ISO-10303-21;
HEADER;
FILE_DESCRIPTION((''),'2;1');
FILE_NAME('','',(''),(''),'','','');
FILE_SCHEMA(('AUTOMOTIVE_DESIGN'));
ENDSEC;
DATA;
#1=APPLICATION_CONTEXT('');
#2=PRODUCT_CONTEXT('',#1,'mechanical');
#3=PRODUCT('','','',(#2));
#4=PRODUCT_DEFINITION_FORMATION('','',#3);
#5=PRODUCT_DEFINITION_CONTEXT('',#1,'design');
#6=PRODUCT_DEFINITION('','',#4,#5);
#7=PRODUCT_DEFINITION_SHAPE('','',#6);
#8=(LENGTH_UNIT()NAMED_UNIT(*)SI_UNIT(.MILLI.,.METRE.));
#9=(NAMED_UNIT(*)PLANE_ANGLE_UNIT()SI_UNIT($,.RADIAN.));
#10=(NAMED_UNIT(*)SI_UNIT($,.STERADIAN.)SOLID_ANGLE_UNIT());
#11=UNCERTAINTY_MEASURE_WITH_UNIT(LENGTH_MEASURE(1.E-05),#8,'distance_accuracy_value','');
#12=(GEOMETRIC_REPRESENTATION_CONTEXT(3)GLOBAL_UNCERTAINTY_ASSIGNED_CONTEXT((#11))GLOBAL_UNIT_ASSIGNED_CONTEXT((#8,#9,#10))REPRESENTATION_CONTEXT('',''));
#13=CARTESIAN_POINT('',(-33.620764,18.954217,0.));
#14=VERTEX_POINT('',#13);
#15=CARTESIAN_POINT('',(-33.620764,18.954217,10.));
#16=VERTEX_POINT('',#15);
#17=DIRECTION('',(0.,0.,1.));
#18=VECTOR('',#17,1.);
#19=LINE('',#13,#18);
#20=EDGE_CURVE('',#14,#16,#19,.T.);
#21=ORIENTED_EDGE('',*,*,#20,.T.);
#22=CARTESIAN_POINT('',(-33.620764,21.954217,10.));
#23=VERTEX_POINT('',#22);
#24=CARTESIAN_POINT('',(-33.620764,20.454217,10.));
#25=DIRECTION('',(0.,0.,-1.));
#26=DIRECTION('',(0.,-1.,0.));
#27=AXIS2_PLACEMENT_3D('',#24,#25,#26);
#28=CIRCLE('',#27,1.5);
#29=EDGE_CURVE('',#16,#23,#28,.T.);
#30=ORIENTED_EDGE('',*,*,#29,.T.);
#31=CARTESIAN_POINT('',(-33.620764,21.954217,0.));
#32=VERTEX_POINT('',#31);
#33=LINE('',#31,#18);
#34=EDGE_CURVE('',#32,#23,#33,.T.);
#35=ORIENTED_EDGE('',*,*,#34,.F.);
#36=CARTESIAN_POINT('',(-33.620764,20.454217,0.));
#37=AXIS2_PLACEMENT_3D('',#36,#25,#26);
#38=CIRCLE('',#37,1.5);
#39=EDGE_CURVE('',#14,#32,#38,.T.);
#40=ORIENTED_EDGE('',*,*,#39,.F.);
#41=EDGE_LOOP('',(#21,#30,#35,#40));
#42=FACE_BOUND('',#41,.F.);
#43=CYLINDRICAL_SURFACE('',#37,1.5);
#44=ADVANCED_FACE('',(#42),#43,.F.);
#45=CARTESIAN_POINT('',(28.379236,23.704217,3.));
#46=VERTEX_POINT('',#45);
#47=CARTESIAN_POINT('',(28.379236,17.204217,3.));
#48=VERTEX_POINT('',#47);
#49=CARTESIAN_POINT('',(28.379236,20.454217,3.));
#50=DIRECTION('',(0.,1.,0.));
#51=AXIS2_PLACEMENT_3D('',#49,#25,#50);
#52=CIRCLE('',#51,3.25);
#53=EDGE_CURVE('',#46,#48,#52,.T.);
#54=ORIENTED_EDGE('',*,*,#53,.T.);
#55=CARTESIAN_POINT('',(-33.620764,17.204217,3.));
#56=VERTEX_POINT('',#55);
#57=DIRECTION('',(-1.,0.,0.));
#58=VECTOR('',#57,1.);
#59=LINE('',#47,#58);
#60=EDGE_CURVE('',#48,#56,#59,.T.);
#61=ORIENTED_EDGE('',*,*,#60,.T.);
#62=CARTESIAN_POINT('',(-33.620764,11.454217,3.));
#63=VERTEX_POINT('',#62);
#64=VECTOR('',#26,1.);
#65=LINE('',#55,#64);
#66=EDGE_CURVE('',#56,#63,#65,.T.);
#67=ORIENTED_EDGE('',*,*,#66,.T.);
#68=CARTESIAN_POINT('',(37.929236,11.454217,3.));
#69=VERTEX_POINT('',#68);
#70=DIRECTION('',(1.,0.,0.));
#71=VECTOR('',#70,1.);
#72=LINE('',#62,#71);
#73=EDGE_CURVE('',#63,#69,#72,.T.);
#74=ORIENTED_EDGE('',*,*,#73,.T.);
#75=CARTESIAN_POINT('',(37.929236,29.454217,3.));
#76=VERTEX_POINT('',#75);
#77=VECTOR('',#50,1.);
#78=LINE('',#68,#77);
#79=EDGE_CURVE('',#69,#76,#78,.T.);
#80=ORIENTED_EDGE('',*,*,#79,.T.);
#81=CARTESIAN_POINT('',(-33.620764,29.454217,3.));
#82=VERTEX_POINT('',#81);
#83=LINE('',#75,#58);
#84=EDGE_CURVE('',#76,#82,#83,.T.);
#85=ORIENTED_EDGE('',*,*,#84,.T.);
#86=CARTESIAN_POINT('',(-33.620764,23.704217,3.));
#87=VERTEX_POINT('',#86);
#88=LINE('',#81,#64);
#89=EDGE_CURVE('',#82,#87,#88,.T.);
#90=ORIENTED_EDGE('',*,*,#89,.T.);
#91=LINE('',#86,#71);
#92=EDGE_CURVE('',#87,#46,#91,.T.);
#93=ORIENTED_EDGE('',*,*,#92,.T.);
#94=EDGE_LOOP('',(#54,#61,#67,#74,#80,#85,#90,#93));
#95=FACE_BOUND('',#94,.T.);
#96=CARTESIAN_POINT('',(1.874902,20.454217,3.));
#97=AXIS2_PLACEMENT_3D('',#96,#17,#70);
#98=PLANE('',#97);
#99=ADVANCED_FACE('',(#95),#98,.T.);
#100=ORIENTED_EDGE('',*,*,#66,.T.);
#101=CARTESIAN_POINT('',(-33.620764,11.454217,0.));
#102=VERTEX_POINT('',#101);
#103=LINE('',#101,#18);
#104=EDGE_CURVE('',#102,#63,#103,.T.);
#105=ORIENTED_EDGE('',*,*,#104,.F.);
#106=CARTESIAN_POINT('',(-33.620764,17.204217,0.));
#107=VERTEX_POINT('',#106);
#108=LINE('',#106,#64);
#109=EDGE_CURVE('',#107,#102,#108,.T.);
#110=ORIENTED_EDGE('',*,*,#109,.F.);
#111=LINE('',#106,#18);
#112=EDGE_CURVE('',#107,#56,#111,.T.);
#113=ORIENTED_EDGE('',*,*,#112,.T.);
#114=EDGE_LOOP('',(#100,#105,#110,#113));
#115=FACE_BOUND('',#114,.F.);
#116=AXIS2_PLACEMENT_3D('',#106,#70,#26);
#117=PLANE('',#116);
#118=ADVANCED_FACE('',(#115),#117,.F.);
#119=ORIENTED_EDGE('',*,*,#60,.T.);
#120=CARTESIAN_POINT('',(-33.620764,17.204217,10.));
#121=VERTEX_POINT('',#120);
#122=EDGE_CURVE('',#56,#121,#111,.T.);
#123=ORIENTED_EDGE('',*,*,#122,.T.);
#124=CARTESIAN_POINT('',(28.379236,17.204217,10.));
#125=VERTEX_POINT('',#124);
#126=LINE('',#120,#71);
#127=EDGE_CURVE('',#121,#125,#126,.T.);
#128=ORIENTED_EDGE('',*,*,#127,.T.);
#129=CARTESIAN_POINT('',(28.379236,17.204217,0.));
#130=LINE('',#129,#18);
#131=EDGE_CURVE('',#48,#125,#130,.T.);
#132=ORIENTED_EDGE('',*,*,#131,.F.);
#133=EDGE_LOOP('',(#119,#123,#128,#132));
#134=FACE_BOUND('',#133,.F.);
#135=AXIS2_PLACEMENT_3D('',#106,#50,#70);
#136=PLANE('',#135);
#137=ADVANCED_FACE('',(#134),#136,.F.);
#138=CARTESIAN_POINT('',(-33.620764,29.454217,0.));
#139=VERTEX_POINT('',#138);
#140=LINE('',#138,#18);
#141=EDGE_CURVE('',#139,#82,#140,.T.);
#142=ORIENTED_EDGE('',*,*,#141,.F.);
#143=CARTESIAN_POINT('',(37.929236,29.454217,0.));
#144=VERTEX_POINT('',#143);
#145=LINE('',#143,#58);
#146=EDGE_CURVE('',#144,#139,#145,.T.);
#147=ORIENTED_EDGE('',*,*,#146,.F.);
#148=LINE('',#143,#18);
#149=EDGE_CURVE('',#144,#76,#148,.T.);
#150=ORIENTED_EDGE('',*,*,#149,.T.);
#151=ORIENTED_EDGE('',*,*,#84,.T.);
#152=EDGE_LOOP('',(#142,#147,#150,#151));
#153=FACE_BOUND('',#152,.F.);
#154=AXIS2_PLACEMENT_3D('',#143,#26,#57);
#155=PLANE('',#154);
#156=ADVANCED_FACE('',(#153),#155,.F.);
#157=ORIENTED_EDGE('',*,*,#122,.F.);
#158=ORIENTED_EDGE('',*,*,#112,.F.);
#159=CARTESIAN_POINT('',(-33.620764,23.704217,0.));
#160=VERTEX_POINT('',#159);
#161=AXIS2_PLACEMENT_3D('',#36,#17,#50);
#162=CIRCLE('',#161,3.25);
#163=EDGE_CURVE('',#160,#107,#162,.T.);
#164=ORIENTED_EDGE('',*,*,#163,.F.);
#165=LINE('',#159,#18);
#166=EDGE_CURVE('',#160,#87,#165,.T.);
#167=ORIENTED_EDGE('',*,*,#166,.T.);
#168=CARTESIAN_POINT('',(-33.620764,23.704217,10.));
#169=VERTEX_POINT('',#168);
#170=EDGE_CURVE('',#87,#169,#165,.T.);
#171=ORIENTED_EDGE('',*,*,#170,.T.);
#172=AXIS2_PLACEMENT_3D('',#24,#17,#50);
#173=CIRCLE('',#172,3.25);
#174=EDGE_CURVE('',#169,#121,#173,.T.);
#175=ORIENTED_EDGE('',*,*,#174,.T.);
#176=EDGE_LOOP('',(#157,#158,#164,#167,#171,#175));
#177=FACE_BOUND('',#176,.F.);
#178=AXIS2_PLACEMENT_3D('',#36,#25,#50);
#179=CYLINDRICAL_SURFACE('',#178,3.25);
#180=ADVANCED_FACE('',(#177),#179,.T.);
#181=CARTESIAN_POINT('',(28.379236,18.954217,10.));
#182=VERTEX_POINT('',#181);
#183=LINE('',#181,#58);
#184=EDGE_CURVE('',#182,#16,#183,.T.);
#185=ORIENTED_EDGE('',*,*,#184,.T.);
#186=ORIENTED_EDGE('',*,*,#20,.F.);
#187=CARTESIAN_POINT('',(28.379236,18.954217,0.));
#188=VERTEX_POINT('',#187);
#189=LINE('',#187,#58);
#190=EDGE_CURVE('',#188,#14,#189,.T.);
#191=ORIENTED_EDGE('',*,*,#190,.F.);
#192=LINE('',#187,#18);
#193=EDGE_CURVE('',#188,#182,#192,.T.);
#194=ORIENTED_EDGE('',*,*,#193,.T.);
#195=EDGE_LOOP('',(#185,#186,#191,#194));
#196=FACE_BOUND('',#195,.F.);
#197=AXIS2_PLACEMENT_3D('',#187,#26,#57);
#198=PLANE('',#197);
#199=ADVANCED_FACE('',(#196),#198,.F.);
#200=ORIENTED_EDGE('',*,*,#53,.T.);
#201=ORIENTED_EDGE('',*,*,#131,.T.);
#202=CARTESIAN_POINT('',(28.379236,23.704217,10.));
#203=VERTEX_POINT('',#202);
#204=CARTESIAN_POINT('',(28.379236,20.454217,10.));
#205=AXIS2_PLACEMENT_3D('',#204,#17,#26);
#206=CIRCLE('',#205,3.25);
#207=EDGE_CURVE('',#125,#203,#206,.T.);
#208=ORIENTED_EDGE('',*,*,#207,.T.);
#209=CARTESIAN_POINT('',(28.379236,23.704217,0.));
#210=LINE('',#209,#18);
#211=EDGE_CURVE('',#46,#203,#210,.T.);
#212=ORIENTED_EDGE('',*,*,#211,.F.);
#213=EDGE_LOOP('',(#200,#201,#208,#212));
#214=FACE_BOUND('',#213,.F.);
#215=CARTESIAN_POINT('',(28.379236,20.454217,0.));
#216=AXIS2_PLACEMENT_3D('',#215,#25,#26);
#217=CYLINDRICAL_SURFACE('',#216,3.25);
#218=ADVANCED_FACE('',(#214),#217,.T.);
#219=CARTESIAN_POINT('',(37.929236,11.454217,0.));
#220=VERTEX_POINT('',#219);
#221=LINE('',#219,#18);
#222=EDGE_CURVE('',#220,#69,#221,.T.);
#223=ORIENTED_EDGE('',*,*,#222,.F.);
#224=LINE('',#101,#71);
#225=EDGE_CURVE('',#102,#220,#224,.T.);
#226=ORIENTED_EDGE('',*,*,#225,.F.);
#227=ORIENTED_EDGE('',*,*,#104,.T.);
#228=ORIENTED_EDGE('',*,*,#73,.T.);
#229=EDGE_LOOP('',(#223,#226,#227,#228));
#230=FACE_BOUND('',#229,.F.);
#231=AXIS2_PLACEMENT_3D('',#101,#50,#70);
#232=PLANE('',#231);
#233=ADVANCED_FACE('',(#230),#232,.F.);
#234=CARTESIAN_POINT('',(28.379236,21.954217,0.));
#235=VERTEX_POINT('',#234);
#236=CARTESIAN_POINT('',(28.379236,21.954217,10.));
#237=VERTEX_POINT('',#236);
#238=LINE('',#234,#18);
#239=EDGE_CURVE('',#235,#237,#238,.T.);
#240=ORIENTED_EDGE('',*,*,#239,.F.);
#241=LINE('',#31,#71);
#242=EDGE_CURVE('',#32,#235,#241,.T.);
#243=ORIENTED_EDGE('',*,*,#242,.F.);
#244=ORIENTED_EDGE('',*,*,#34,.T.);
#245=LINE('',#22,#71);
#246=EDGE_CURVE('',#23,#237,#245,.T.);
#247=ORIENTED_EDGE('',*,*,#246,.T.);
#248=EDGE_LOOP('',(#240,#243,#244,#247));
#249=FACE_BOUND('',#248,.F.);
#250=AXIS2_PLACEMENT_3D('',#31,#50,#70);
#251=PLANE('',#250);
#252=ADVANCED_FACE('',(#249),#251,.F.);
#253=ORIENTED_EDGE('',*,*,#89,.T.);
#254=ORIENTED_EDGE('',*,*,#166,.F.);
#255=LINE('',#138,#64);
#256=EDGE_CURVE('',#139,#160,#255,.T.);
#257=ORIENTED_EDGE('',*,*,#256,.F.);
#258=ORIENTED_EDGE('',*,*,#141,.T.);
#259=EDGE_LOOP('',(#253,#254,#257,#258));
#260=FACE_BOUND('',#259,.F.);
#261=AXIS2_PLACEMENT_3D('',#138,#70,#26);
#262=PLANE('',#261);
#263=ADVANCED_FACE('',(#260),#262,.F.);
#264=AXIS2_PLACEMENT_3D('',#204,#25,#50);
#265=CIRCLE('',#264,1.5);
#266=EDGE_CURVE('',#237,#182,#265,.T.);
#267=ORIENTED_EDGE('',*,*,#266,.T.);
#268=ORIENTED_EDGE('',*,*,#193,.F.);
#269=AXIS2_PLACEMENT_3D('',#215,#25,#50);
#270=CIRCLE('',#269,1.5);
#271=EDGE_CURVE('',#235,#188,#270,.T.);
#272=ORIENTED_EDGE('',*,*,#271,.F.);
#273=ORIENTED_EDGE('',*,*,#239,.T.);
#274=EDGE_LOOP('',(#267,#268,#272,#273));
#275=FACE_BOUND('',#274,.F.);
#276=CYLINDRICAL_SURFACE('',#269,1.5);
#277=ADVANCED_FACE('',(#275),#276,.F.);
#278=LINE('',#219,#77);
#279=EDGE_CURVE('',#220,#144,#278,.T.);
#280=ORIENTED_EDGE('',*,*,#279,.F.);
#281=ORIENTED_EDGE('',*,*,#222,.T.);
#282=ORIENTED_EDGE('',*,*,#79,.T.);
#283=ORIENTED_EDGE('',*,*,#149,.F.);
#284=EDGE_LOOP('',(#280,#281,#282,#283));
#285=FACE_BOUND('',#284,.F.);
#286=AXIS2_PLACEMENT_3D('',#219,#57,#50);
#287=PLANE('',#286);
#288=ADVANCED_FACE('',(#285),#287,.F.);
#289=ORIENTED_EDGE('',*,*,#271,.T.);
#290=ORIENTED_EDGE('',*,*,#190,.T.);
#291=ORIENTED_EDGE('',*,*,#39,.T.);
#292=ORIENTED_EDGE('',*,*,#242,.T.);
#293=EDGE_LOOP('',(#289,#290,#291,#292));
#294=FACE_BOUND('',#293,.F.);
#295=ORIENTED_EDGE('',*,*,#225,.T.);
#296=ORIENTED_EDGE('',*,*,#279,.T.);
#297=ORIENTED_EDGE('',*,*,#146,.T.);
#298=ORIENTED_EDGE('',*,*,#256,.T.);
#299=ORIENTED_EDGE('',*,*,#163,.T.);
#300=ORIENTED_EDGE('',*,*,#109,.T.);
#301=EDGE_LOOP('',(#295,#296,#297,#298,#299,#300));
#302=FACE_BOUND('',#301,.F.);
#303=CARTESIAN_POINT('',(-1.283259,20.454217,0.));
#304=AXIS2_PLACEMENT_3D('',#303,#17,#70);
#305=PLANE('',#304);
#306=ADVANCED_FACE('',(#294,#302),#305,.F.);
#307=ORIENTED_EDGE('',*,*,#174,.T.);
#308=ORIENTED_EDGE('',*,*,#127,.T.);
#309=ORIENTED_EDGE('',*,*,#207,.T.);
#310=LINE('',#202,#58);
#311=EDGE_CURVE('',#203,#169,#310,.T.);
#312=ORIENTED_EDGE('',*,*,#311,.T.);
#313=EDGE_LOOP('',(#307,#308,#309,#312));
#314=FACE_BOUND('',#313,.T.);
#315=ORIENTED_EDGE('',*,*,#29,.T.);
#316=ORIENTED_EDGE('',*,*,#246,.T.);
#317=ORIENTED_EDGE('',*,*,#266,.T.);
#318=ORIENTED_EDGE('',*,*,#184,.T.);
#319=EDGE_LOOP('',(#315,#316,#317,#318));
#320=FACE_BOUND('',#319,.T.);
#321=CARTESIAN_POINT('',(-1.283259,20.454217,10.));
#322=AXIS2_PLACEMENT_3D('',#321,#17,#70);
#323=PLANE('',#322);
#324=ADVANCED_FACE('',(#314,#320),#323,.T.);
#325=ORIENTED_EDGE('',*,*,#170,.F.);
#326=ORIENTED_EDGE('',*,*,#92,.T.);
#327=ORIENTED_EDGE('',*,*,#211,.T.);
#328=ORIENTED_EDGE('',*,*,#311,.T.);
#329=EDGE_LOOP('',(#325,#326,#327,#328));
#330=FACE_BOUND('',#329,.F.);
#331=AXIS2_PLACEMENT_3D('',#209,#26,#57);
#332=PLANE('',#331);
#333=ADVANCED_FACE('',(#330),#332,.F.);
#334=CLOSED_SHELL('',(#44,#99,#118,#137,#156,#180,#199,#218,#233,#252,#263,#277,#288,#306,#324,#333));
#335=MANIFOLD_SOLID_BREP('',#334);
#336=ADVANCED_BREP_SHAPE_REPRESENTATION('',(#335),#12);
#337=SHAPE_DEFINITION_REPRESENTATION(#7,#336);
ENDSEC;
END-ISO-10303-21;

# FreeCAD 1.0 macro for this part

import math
import FreeCAD as App
import Part
import Sketcher
from FreeCAD import Vector
Q = App.Units.Quantity

doc = App.newDocument("Part")
body = doc.addObject("PartDesign::Body", "Body")

sketch1 = doc.addObject("Sketcher::SketchObject", "Sketch")
body.addObject(sketch1)
sketch1.AttachmentSupport = (doc.XY_Plane, [""])
sketch1.MapMode = "FlatFace"
sketch1.addGeometry([
    Part.LineSegment(Vector(28.4, 17.2, 0), Vector(-33.6, 17.2, 0)),
    Part.LineSegment(Vector(-33.6, 17.2, 0), Vector(-33.6, 11.5, 0)),
    Part.LineSegment(Vector(-33.6, 11.5, 0), Vector(37.9, 11.5, 0)),
    Part.LineSegment(Vector(37.9, 11.5, 0), Vector(37.9, 29.5, 0)),
    Part.LineSegment(Vector(37.9, 29.5, 0), Vector(-33.6, 29.5, 0)),
    Part.LineSegment(Vector(-33.6, 29.5, 0), Vector(-33.6, 23.7, 0)),
    Part.LineSegment(Vector(-33.6, 23.7, 0), Vector(28.4, 23.7, 0)),
    Part.ArcOfCircle(Part.Circle(Vector(28.4, 20.5, 0), Vector(0, 0, 1), 3.2), math.radians(-90), math.radians(90)),
], False)
sketch1.addConstraint([
    Sketcher.Constraint("Coincident", 0, 2, 1, 1),
    Sketcher.Constraint("Coincident", 1, 2, 2, 1),
    Sketcher.Constraint("Coincident", 2, 2, 3, 1),
    Sketcher.Constraint("Coincident", 3, 2, 4, 1),
    Sketcher.Constraint("Coincident", 4, 2, 5, 1),
    Sketcher.Constraint("Coincident", 5, 2, 6, 1),
    Sketcher.Constraint("Tangent", 6, 2, 7, 2),
    Sketcher.Constraint("Tangent", 7, 1, 0, 1),
    Sketcher.Constraint("Horizontal", 0),
    Sketcher.Constraint("Vertical", 1),
    Sketcher.Constraint("Horizontal", 2),
    Sketcher.Constraint("Vertical", 3),
    Sketcher.Constraint("Horizontal", 4),
    Sketcher.Constraint("Vertical", 5),
    Sketcher.Constraint("Horizontal", 6),
    Sketcher.Constraint("Vertical", 1, 2, 4, 2),
    Sketcher.Constraint("Equal", 1, 5),
    Sketcher.Constraint("DistanceX", 0, 2, 0, 1, Q("62 mm")),
    Sketcher.Constraint("DistanceY", 3, 1, 3, 2, Q("18 mm")),
    Sketcher.Constraint("Radius", 7, Q("3.25 mm")),
    Sketcher.Constraint("DistanceX", 2, 1, 2, 2, Q("71.55 mm")),
    Sketcher.Constraint("DistanceX", -1, 1, 7, 3, Q("28.379236 mm")),
    Sketcher.Constraint("DistanceY", -1, 1, 7, 3, Q("20.454217 mm")),
])
pad1 = doc.addObject("PartDesign::Pad", "Pad")
body.addObject(pad1)
pad1.Profile = sketch1
pad1.Length = 3

sketch2 = doc.addObject("Sketcher::SketchObject", "Sketch001")
body.addObject(sketch2)
sketch2.AttachmentSupport = (doc.XY_Plane, [""])
sketch2.MapMode = "FlatFace"
sketch2.addGeometry([
    Part.LineSegment(Vector(-33.6, 17.2, 0), Vector(28.4, 17.2, 0)),
    Part.ArcOfCircle(Part.Circle(Vector(28.4, 20.5, 0), Vector(0, 0, 1), 3.2), math.radians(-90), math.radians(90)),
    Part.LineSegment(Vector(28.4, 23.7, 0), Vector(-33.6, 23.7, 0)),
    Part.ArcOfCircle(Part.Circle(Vector(-33.6, 20.5, 0), Vector(0, 0, 1), 3.2), math.radians(90), math.radians(270)),
    Part.LineSegment(Vector(-33.6, 22, 0), Vector(28.4, 22, 0)),
    Part.ArcOfCircle(Part.Circle(Vector(28.4, 20.5, 0), Vector(0, 0, 1), 1.5), math.radians(-90), math.radians(90)),
    Part.LineSegment(Vector(28.4, 19, 0), Vector(-33.6, 19, 0)),
    Part.ArcOfCircle(Part.Circle(Vector(-33.6, 20.5, 0), Vector(0, 0, 1), 1.5), math.radians(90), math.radians(270)),
], False)
sketch2.addConstraint([
    Sketcher.Constraint("Tangent", 0, 2, 1, 1),
    Sketcher.Constraint("Tangent", 1, 2, 2, 1),
    Sketcher.Constraint("Tangent", 2, 2, 3, 1),
    Sketcher.Constraint("Tangent", 3, 2, 0, 1),
    Sketcher.Constraint("Tangent", 4, 2, 5, 2),
    Sketcher.Constraint("Tangent", 5, 1, 6, 1),
    Sketcher.Constraint("Tangent", 6, 2, 7, 2),
    Sketcher.Constraint("Tangent", 7, 1, 4, 1),
    Sketcher.Constraint("Horizontal", 0),
    Sketcher.Constraint("Horizontal", 2),
    Sketcher.Constraint("Horizontal", 4),
    Sketcher.Constraint("Horizontal", 6),
    Sketcher.Constraint("Coincident", 5, 3, 1, 3),
    Sketcher.Constraint("Vertical", 7, 3, 2, 2),
    Sketcher.Constraint("Radius", 5, Q("1.5 mm")),
    Sketcher.Constraint("DistanceX", 0, 1, 0, 2, Q("62 mm")),
    Sketcher.Constraint("Radius", 1, Q("3.25 mm")),
    Sketcher.Constraint("DistanceX", -1, 1, 1, 3, Q("28.379236 mm")),
    Sketcher.Constraint("DistanceY", -1, 1, 1, 3, Q("20.454217 mm")),
])
pad2 = doc.addObject("PartDesign::Pad", "Pad001")
body.addObject(pad2)
pad2.Profile = sketch2
pad2.Length = 10

doc.recompute()
